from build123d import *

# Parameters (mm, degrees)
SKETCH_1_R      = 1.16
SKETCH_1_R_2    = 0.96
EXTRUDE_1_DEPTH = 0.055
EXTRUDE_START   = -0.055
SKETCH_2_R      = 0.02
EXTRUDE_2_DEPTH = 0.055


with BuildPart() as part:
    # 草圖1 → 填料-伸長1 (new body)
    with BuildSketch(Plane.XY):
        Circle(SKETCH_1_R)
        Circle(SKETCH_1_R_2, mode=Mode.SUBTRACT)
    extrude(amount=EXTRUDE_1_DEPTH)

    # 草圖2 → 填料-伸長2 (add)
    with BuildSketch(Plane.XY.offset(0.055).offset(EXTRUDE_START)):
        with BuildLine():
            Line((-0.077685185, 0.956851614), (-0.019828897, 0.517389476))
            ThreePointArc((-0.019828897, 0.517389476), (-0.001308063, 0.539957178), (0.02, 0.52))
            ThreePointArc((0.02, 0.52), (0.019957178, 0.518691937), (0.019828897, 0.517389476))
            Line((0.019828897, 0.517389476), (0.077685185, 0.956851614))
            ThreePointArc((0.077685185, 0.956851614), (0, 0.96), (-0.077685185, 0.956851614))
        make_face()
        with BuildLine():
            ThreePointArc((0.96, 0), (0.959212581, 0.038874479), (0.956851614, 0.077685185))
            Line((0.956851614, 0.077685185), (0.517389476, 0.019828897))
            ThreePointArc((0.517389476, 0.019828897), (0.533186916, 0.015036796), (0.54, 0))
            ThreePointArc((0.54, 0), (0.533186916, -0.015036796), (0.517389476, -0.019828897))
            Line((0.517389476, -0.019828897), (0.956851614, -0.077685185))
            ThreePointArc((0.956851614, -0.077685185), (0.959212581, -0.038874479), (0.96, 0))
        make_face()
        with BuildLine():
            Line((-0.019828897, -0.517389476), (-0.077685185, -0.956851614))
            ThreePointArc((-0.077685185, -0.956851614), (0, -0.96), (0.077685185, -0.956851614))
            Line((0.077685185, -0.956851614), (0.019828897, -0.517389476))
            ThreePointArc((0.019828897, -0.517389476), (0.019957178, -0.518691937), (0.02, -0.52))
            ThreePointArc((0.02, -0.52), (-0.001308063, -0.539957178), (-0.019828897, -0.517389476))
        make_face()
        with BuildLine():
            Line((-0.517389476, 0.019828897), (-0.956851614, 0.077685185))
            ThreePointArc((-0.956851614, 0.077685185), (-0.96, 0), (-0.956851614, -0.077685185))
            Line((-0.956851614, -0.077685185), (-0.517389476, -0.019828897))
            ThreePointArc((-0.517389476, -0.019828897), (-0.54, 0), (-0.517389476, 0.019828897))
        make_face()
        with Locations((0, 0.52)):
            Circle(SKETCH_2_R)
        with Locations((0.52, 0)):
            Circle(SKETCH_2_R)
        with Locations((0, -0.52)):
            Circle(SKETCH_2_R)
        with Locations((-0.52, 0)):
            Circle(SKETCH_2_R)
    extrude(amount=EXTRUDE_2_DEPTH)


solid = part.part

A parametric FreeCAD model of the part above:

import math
import FreeCAD as App
import Part
import Sketcher

V = App.Vector
Q = App.Units.Quantity

doc = App.newDocument("Part")
params = doc.addObject("Spreadsheet::Sheet", "Params")
for row, (alias, value) in enumerate([
    ("sketch1_diameter", "2.32 mm"),
    ("sketch1_diameter2", "1.92 mm"),
    ("pad1_length", "0.055 mm"),
    ("sketch2_radius", "0.02 mm"),
    ("sketch2_radius2", "0.96 mm"),
    ("pad2_length", "0.055 mm"),
], start=1):
    params.set(f"A{row}", alias)
    params.set(f"B{row}", "=" + value)
    params.setAlias(f"B{row}", alias)

body = doc.addObject("PartDesign::Body", "Body")

sketch1 = body.newObject("Sketcher::SketchObject", "Sketch")
sketch1.AttachmentSupport = (doc.getObject("XY_Plane"), [""])
sketch1.MapMode = "FlatFace"
sketch1.addGeometry([
    Part.Circle(V(0, 0, 0), V(0, 0, 1), 1.2),
    Part.Circle(V(0, 0, 0), V(0, 0, 1), 1),
], False)
sketch1.addConstraint([
    Sketcher.Constraint("Coincident", 0, 3, -1, 1),
    Sketcher.Constraint("Coincident", 1, 3, -1, 1),
    Sketcher.Constraint("Diameter", 0, Q("2.32 mm")),
    Sketcher.Constraint("Diameter", 1, Q("1.92 mm")),
])
sketch1.setExpression("Constraints[2]", "Params.sketch1_diameter")
sketch1.setExpression("Constraints[3]", "Params.sketch1_diameter2")
pad1 = body.newObject("PartDesign::Pad", "Pad")
pad1.Profile = sketch1
pad1.setExpression("Length", "Params.pad1_length")

sketch2 = body.newObject("Sketcher::SketchObject", "Sketch001")
sketch2.AttachmentSupport = (doc.getObject("XY_Plane"), [""])
sketch2.MapMode = "FlatFace"
sketch2.addGeometry([
    Part.LineSegment(V(-0.078, 0.957, 0), V(-0.02, 0.517, 0)),
    Part.ArcOfCircle(Part.Circle(V(0, 0.52, 0), V(0, 0, 1), 0.02), math.radians(-172), math.radians(-8)),
    Part.LineSegment(V(0.02, 0.517, 0), V(0.078, 0.957, 0)),
    Part.ArcOfCircle(Part.Circle(V(0, 0, 0), V(0, 0, 1), 0.96), math.radians(85.36), math.radians(94.64)),
    Part.ArcOfCircle(Part.Circle(V(0, 0, 0), V(0, 0, 1), 0.96), math.radians(0), math.radians(4.64)),
    Part.LineSegment(V(0.957, 0.078, 0), V(0.517, 0.02, 0)),
    Part.ArcOfCircle(Part.Circle(V(0.52, 0, 0), V(0, 0, 1), 0.02), math.radians(98), math.radians(262)),
    Part.LineSegment(V(0.517, -0.02, 0), V(0.957, -0.078, 0)),
    Part.ArcOfCircle(Part.Circle(V(0, 0, 0), V(0, 0, 1), 0.96), math.radians(-4.64), math.radians(0)),
    Part.LineSegment(V(-0.02, -0.517, 0), V(-0.078, -0.957, 0)),
    Part.ArcOfCircle(Part.Circle(V(0, 0, 0), V(0, 0, 1), 0.96), math.radians(-94.64), math.radians(-85.36)),
    Part.LineSegment(V(0.078, -0.957, 0), V(0.02, -0.517, 0)),
    Part.ArcOfCircle(Part.Circle(V(0, -0.52, 0), V(0, 0, 1), 0.02), math.radians(8), math.radians(172)),
    Part.LineSegment(V(-0.517, 0.02, 0), V(-0.957, 0.078, 0)),
    Part.ArcOfCircle(Part.Circle(V(0, 0, 0), V(0, 0, 1), 0.96), math.radians(175.36), math.radians(184.64)),
    Part.LineSegment(V(-0.957, -0.078, 0), V(-0.517, -0.02, 0)),
    Part.ArcOfCircle(Part.Circle(V(-0.52, 0, 0), V(0, 0, 1), 0.02), math.radians(-82), math.radians(82)),
], False)
sketch2.addConstraint([
    Sketcher.Constraint("Tangent", 0, 2, 1, 1),
    Sketcher.Constraint("Tangent", 1, 2, 2, 1),
    Sketcher.Constraint("Coincident", 2, 2, 3, 1),
    Sketcher.Constraint("Coincident", 3, 2, 0, 1),
    Sketcher.Constraint("Coincident", 4, 2, 5, 1),
    Sketcher.Constraint("Tangent", 5, 2, 6, 1),
    Sketcher.Constraint("Tangent", 6, 2, 7, 1),
    Sketcher.Constraint("Coincident", 7, 2, 8, 1),
    Sketcher.Constraint("Tangent", 8, 2, 4, 1),
    Sketcher.Constraint("Coincident", 9, 2, 10, 1),
    Sketcher.Constraint("Coincident", 10, 2, 11, 1),
    Sketcher.Constraint("Tangent", 11, 2, 12, 1),
    Sketcher.Constraint("Tangent", 12, 2, 9, 1),
    Sketcher.Constraint("Coincident", 13, 2, 14, 1),
    Sketcher.Constraint("Coincident", 14, 2, 15, 1),
    Sketcher.Constraint("Tangent", 15, 2, 16, 1),
    Sketcher.Constraint("Tangent", 16, 2, 13, 1),
    Sketcher.Constraint("Coincident", 3, 3, -1, 1),
    Sketcher.Constraint("Coincident", 4, 3, -1, 1),
    Sketcher.Constraint("Coincident", 10, 3, -1, 1),
    Sketcher.Constraint("Coincident", 14, 3, -1, 1),
    Sketcher.Constraint("Equal", 3, 4),
    Sketcher.Constraint("Equal", 1, 6),
    Sketcher.Constraint("Equal", 4, 8),
    Sketcher.Constraint("Equal", 8, 10),
    Sketcher.Constraint("Equal", 6, 12),
    Sketcher.Constraint("Equal", 10, 14),
    Sketcher.Constraint("Equal", 12, 16),
    Sketcher.Constraint("Symmetric", 1, 3, 12, 3, -1, 1),
    Sketcher.Constraint("Symmetric", 6, 3, 16, 3, -1, 1),
    Sketcher.Constraint("Symmetric", 0, 2, 1, 2, -2),
    Sketcher.Constraint("Symmetric", 6, 2, 15, 2, -2),
    Sketcher.Constraint("PointOnObject", 8, 2, -1),
    Sketcher.Constraint("Perpendicular", 0, 5),
    Sketcher.Constraint("Perpendicular", 2, 7),
    Sketcher.Constraint("Perpendicular", 7, 9),
    Sketcher.Constraint("Perpendicular", 5, 11),
    Sketcher.Constraint("Perpendicular", 9, 13),
    Sketcher.Constraint("Equal", 2, 5),
    Sketcher.Constraint("Radius", 1, Q("0.02 mm")),
    Sketcher.Constraint("Radius", 3, Q("0.96 mm")),
    Sketcher.Constraint("Angle", 0, Q("-82.5 deg")),
    Sketcher.Constraint("DistanceY", -1, 1, 1, 3, Q("0.52 mm")),
])
sketch2.setExpression("Constraints[39]", "Params.sketch2_radius")
sketch2.setExpression("Constraints[40]", "Params.sketch2_radius2")
pad2 = body.newObject("PartDesign::Pad", "Pad001")
pad2.Profile = sketch2
pad2.setExpression("Length", "Params.pad2_length")

doc.recompute()
